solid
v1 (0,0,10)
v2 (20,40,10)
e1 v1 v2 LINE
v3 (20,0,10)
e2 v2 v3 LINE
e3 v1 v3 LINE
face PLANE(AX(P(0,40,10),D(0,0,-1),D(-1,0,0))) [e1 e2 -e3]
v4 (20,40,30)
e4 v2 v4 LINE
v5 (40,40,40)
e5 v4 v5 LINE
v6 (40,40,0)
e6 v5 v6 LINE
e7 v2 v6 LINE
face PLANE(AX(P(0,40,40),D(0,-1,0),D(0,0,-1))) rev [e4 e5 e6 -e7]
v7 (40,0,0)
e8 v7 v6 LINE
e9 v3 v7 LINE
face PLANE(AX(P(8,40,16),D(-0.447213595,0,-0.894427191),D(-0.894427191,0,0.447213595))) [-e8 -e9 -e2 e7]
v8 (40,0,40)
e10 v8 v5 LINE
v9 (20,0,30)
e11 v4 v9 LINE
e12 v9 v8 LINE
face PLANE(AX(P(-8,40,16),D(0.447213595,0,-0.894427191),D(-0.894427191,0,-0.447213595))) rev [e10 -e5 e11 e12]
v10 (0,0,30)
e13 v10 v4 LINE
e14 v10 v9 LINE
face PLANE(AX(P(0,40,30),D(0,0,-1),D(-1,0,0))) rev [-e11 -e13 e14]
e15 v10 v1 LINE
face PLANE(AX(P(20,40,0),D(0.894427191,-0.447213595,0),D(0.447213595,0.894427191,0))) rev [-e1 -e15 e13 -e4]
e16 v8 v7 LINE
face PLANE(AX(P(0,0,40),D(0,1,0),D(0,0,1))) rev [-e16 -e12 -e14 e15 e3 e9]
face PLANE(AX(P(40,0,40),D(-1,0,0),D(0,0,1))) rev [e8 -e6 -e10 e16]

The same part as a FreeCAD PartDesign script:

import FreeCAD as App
import Part
import Sketcher
from FreeCAD import Vector
Q = App.Units.Quantity

doc = App.newDocument("Part")
body = doc.addObject("PartDesign::Body", "Body")

sketch1 = body.newObject("Sketcher::SketchObject", "Sketch")
sketch1.AttachmentSupport = (doc.getObject("XY_Plane"), [""])
sketch1.MapMode = "FlatFace"
sketch1.addGeometry([
    Part.LineSegment(Vector(0, 40, 0), Vector(0, 0, 0)),
    Part.LineSegment(Vector(0, 0, 0), Vector(40, 0, 0)),
    Part.LineSegment(Vector(40, 0, 0), Vector(40, 40, 0)),
    Part.LineSegment(Vector(40, 40, 0), Vector(0, 40, 0)),
], False)
sketch1.addConstraint([
    Sketcher.Constraint("Coincident", 0, 2, 1, 1),
    Sketcher.Constraint("Coincident", 1, 2, 2, 1),
    Sketcher.Constraint("Coincident", 2, 2, 3, 1),
    Sketcher.Constraint("Coincident", 3, 2, 0, 1),
    Sketcher.Constraint("Vertical", 0),
    Sketcher.Constraint("Horizontal", 1),
    Sketcher.Constraint("Vertical", 2),
    Sketcher.Constraint("Horizontal", 3),
    Sketcher.Constraint("Coincident", 0, 2, -1, 1),
    Sketcher.Constraint("Equal", 3, 0),
    Sketcher.Constraint("DistanceX", 1, 1, 1, 2, Q("40 mm")),
])
pad1 = body.newObject("PartDesign::Pad", "Pad")
pad1.Profile = sketch1
pad1.Length = 40

sketch2 = body.newObject("Sketcher::SketchObject", "Sketch001")
sketch2.AttachmentSupport = (doc.getObject("XY_Plane"), [""])
sketch2.MapMode = "FlatFace"
sketch2.AttachmentOffset = App.Placement(Vector(0, 0, 40), App.Rotation())
sketch2.addGeometry([
    Part.LineSegment(Vector(20, 40, 0), Vector(0, 40, 0)),
    Part.LineSegment(Vector(0, 40, 0), Vector(0, 0, 0)),
    Part.LineSegment(Vector(0, 0, 0), Vector(20, 40, 0)),
], False)
sketch2.addConstraint([
    Sketcher.Constraint("Coincident", 0, 2, 1, 1),
    Sketcher.Constraint("Coincident", 1, 2, 2, 1),
    Sketcher.Constraint("Coincident", 2, 2, 0, 1),
    Sketcher.Constraint("Horizontal", 0),
    Sketcher.Constraint("Vertical", 1),
    Sketcher.Constraint("Coincident", 1, 2, -1, 1),
    Sketcher.Constraint("DistanceX", 0, 2, 0, 1, Q("20 mm")),
    Sketcher.Constraint("DistanceY", 1, 2, 1, 1, Q("40 mm")),
])
pocket1 = body.newObject("PartDesign::Pocket", "Pocket")
pocket1.Profile = sketch2
pocket1.Length = 40

sketch3 = body.newObject("Sketcher::SketchObject", "Sketch002")
sketch3.AttachmentSupport = (doc.getObject("XZ_Plane"), [""])
sketch3.MapMode = "FlatFace"
sketch3.addGeometry([
    Part.LineSegment(Vector(0, 10, 0), Vector(0, 0, 0)),
    Part.LineSegment(Vector(0, 0, 0), Vector(40, 0, 0)),
    Part.LineSegment(Vector(40, 0, 0), Vector(20, 10, 0)),
    Part.LineSegment(Vector(20, 10, 0), Vector(0, 10, 0)),
    Part.LineSegment(Vector(0, 40, 0), Vector(0, 30, 0)),
    Part.LineSegment(Vector(0, 30, 0), Vector(20, 30, 0)),
    Part.LineSegment(Vector(20, 30, 0), Vector(40, 40, 0)),
    Part.LineSegment(Vector(40, 40, 0), Vector(0, 40, 0)),
], False)
sketch3.addConstraint([
    Sketcher.Constraint("Coincident", 0, 2, 1, 1),
    Sketcher.Constraint("Coincident", 1, 2, 2, 1),
    Sketcher.Constraint("Coincident", 2, 2, 3, 1),
    Sketcher.Constraint("Coincident", 3, 2, 0, 1),
    Sketcher.Constraint("Coincident", 4, 2, 5, 1),
    Sketcher.Constraint("Coincident", 5, 2, 6, 1),
    Sketcher.Constraint("Coincident", 6, 2, 7, 1),
    Sketcher.Constraint("Coincident", 7, 2, 4, 1),
    Sketcher.Constraint("Vertical", 0),
    Sketcher.Constraint("Horizontal", 1),
    Sketcher.Constraint("Horizontal", 3),
    Sketcher.Constraint("Vertical", 4),
    Sketcher.Constraint("Horizontal", 5),
    Sketcher.Constraint("Horizontal", 7),
    Sketcher.Constraint("Coincident", 0, 2, -1, 1),
    Sketcher.Constraint("PointOnObject", 4, 2, -2),
    Sketcher.Constraint("Vertical", 2, 2, 5, 2),
    Sketcher.Constraint("Vertical", 1, 2, 6, 2),
    Sketcher.Constraint("Equal", 0, 4),
    Sketcher.Constraint("DistanceX", 1, 1, 1, 2, Q("40 mm")),
    Sketcher.Constraint("DistanceX", 3, 2, 3, 1, Q("20 mm")),
    Sketcher.Constraint("DistanceY", 0, 2, 0, 1, Q("10 mm")),
    Sketcher.Constraint("DistanceY", -1, 1, 4, 2, Q("30 mm")),
])
pocket2 = body.newObject("PartDesign::Pocket", "Pocket001")
pocket2.Profile = sketch3
pocket2.Length = 40

doc.recompute()
